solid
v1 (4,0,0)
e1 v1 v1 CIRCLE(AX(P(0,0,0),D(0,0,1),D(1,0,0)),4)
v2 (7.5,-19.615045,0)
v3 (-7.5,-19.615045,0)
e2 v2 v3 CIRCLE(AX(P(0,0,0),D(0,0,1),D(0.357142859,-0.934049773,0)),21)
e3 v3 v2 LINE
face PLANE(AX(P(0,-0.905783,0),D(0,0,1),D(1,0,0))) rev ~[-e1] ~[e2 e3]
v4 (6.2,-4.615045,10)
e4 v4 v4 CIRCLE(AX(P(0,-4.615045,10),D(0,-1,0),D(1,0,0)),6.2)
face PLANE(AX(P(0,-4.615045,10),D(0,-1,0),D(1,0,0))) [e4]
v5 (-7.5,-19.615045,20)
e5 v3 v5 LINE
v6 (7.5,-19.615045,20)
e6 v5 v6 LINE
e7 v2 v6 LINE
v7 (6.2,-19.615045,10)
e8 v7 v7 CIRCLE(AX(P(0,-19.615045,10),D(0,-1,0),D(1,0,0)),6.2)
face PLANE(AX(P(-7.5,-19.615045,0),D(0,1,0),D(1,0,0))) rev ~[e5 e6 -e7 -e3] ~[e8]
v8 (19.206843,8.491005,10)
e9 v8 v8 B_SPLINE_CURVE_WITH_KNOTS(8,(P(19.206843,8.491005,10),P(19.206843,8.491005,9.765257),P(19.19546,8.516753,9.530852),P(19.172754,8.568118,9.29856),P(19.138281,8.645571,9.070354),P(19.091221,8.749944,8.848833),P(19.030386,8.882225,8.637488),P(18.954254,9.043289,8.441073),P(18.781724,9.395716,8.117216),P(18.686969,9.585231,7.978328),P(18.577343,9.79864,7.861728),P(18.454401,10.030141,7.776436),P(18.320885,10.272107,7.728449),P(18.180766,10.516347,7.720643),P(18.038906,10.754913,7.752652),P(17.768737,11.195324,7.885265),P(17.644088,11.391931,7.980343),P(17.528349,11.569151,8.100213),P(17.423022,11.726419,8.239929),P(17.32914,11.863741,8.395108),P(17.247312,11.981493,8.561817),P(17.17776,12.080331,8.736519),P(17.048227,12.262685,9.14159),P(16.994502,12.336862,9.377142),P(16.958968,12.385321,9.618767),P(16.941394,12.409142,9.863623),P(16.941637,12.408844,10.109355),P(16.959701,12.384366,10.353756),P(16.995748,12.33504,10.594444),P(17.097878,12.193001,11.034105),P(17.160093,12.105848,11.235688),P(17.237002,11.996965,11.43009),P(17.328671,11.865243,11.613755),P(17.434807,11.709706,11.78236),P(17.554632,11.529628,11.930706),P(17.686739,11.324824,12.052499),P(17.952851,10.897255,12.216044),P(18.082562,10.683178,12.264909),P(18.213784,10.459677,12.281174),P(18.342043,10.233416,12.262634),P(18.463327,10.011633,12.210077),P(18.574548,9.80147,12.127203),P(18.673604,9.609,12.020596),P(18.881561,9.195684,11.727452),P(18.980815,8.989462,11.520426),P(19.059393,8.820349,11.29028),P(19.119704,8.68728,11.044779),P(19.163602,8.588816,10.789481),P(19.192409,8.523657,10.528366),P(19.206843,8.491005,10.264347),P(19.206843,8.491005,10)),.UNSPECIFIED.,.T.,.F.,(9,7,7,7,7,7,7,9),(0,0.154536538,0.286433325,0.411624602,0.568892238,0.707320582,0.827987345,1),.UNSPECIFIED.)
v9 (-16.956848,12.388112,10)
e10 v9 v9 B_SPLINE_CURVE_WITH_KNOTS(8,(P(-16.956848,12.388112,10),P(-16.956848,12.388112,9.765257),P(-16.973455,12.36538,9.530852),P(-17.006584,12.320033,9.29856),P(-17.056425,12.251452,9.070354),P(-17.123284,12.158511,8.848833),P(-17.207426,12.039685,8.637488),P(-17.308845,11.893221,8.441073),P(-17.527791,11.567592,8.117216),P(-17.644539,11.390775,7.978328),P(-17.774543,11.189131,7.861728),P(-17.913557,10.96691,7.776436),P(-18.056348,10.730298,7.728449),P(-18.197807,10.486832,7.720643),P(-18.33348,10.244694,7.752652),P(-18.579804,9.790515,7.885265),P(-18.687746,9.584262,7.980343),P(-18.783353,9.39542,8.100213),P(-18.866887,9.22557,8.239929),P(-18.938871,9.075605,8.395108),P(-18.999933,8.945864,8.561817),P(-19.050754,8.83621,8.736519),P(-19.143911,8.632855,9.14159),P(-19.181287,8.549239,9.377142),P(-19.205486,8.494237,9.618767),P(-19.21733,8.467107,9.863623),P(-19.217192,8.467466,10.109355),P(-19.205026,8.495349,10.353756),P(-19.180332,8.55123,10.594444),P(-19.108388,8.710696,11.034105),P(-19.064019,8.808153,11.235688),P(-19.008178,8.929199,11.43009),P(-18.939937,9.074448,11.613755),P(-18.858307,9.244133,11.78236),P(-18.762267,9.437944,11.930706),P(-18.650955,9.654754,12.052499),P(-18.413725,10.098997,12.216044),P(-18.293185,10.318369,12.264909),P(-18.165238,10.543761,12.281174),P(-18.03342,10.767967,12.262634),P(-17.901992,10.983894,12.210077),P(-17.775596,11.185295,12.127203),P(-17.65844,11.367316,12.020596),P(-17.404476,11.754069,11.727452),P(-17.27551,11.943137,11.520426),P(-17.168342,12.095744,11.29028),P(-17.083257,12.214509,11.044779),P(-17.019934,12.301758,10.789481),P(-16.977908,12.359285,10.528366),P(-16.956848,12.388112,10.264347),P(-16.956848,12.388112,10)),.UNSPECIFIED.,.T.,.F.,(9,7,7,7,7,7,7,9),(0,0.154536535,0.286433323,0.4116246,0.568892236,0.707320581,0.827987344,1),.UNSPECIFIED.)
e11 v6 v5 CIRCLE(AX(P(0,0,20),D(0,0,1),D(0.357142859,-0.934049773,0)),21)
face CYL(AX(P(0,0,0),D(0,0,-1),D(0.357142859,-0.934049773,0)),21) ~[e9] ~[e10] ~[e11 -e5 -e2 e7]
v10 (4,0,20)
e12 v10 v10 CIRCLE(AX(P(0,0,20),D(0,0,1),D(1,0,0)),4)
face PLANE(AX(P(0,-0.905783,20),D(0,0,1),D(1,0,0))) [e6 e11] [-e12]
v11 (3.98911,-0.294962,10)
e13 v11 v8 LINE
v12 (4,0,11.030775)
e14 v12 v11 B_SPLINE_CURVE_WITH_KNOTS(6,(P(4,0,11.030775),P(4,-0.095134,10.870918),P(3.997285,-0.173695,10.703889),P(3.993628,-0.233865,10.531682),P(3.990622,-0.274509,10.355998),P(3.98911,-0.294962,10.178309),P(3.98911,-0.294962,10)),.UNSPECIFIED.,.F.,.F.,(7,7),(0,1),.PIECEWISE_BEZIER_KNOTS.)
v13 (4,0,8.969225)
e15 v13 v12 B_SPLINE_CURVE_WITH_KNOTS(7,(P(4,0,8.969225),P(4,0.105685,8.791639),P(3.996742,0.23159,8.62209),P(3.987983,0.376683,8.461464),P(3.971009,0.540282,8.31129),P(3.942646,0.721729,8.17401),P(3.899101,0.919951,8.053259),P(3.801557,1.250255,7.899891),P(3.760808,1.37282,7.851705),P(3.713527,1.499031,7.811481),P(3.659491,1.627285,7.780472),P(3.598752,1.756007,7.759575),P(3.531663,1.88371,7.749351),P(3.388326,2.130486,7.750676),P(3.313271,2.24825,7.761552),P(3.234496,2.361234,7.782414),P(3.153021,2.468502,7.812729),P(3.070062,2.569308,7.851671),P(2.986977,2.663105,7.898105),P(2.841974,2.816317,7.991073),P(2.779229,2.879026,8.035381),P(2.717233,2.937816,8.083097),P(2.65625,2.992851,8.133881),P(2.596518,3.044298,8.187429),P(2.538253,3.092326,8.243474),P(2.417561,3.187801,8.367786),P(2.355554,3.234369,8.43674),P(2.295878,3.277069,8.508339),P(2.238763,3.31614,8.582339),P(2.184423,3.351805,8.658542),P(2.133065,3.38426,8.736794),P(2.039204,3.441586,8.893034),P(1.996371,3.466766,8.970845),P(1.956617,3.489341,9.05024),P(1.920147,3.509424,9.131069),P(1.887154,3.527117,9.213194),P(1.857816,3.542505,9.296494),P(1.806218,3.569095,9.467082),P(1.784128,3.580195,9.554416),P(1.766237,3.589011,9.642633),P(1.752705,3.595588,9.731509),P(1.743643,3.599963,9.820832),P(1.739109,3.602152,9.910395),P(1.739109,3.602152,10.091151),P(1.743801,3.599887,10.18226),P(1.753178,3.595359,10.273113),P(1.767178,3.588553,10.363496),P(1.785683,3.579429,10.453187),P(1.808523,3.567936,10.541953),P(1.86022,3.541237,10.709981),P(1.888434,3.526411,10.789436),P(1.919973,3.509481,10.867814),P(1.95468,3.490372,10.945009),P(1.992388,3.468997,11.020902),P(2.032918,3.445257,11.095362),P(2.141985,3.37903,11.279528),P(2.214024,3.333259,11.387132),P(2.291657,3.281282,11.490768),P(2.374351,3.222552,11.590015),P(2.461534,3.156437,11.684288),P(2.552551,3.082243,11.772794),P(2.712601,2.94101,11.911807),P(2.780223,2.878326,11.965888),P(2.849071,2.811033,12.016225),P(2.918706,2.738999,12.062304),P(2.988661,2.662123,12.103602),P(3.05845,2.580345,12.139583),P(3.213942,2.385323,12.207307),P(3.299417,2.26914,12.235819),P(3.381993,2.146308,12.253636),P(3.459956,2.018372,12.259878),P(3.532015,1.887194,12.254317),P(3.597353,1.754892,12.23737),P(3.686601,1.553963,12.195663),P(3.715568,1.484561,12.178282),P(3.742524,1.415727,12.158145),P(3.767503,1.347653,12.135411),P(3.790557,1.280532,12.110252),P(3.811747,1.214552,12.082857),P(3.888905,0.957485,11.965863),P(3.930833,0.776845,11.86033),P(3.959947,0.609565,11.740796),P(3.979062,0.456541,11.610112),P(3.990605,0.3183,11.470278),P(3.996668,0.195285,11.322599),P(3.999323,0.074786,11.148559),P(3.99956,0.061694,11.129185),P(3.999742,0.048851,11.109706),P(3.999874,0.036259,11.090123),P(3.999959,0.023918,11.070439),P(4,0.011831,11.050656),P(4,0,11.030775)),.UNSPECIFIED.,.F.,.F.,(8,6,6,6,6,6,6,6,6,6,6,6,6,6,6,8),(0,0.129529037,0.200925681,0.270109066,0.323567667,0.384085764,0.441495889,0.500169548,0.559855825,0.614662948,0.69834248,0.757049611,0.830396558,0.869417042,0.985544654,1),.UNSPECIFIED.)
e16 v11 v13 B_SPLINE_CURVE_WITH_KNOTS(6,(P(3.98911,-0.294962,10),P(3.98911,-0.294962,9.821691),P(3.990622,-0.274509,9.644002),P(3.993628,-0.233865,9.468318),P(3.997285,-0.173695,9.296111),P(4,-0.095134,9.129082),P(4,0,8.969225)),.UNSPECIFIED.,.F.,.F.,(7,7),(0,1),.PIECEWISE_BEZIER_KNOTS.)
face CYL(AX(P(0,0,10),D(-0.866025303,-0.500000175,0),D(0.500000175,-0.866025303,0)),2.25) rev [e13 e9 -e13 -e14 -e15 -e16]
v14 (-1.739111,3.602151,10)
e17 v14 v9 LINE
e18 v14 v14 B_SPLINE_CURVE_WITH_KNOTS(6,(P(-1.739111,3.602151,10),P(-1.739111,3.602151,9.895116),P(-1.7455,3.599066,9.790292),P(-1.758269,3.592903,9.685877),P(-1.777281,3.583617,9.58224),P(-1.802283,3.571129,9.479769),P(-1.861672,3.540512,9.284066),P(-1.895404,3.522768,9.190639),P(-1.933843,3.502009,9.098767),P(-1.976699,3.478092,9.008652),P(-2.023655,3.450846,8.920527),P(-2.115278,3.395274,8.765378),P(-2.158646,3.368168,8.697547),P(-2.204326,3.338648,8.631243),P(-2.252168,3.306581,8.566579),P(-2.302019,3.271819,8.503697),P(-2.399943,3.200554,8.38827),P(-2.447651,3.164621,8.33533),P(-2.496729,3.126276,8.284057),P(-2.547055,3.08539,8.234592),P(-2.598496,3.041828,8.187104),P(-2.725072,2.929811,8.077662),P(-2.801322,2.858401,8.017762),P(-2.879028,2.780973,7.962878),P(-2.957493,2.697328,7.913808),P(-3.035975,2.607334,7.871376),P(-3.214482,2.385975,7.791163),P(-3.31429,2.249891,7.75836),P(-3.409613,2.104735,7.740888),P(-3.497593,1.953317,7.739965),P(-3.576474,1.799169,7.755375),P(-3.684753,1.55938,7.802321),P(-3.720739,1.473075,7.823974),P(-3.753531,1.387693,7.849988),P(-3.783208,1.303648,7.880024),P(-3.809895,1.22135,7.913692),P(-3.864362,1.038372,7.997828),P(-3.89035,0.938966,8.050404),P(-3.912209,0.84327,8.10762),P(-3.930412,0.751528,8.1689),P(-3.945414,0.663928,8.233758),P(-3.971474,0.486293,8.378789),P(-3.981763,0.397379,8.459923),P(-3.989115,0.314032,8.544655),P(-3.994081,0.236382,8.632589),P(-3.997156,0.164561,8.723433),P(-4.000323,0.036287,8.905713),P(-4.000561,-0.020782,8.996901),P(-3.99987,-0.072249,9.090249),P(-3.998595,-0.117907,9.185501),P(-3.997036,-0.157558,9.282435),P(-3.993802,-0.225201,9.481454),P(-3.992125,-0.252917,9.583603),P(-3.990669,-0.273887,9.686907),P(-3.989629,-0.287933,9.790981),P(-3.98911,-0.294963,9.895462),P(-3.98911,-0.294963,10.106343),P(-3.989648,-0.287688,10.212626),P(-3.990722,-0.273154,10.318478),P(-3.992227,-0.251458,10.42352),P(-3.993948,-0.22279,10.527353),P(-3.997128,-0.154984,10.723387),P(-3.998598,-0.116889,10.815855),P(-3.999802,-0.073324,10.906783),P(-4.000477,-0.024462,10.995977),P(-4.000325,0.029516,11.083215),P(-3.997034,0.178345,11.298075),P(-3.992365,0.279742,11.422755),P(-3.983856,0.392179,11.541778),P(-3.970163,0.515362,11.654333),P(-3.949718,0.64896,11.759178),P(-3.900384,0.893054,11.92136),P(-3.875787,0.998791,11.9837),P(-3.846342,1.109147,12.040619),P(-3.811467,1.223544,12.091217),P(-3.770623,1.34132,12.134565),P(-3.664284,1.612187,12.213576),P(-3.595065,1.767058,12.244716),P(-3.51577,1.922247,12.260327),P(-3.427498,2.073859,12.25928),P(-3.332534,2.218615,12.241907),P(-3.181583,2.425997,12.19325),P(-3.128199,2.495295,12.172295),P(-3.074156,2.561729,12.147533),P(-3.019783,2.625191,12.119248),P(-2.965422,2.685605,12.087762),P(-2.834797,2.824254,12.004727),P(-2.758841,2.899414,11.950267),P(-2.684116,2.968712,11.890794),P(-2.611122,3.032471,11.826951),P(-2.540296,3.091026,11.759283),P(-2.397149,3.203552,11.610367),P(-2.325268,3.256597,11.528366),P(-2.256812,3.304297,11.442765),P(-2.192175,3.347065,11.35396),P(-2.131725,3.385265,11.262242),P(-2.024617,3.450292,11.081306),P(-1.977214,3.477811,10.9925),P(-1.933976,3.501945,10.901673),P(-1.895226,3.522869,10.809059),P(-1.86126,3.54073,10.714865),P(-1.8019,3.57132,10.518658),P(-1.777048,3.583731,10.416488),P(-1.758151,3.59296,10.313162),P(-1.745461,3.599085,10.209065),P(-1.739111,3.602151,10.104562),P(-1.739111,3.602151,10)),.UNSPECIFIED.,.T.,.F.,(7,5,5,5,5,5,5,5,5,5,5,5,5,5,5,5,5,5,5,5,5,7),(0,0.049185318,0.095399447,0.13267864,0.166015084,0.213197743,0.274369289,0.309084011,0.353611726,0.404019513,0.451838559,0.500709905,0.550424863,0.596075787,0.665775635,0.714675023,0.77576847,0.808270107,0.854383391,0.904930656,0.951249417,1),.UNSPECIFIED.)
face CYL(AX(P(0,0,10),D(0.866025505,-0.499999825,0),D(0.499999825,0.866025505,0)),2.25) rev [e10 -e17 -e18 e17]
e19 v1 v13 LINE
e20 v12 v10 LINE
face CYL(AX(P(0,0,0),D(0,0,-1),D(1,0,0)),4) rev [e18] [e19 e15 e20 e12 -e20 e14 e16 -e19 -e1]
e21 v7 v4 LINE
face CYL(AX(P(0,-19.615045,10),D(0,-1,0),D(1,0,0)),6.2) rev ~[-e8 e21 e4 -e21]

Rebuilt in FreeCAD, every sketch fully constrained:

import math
import FreeCAD as App
import Part
import Sketcher

doc = App.newDocument("Part")
params = doc.addObject("Spreadsheet::Sheet", "Params")
for row, (alias, value) in enumerate([
    ("sketch1_diameter", "8 mm"),
    ("sketch1_radius", "21 mm"),
    ("sketch1_width", "15 mm"),
    ("pad1_length", "20 mm"),
    ("sketch2_diameter", "12.4 mm"),
    ("pocket1_length", "15 mm"),
    ("sketch3_diameter", "4.5 mm"),
    ("pocket2_length", "69 mm"),
], start=1):
    params.set(f"A{row}", alias)
    params.set(f"B{row}", "=" + value)
    params.setAlias(f"B{row}", alias)

body = doc.addObject("PartDesign::Body", "Body")

# Sketch on XY plane
sketch1 = body.newObject("Sketcher::SketchObject", "Sketch")
sketch1.AttachmentSupport = (doc.getObject("XY_Plane"), [""])
sketch1.MapMode = "FlatFace"
sketch1.addGeometry([
    Part.ArcOfCircle(Part.Circle(App.Vector(0, 0, 0), App.Vector(0, 0, 1), 21), math.radians(-69.075167), math.radians(249.075167)),
    Part.LineSegment(App.Vector(-7.5, -19.615045, 0), App.Vector(7.5, -19.615045, 0)),
    Part.Circle(App.Vector(0, 0, 0), App.Vector(0, 0, 1), 4),
], False)
sketch1.addConstraint([
    Sketcher.Constraint("Coincident", 0, 1, 1, 2),
    Sketcher.Constraint("Coincident", 1, 1, 0, 2),
    Sketcher.Constraint("Horizontal", 1),
    Sketcher.Constraint("Coincident", 0, 3, -1, 1),
    Sketcher.Constraint("Coincident", 2, 3, -1, 1),
    Sketcher.Constraint("Diameter", 2, 8.0),
    Sketcher.Constraint("Radius", 0, 21.0),
    Sketcher.Constraint("DistanceX", 1, 1, 1, 2, 15.0),
])
sketch1.setExpression("Constraints[5]", "Params.sketch1_diameter")
sketch1.setExpression("Constraints[6]", "Params.sketch1_radius")
sketch1.setExpression("Constraints[7]", "Params.sketch1_width")
pad1 = body.newObject("PartDesign::Pad", "Pad")
pad1.Profile = sketch1
pad1.setExpression("Length", "Params.pad1_length")

# Sketch on XZ plane
sketch2 = body.newObject("Sketcher::SketchObject", "Sketch001")
sketch2.AttachmentSupport = (doc.getObject("XZ_Plane"), [""])
sketch2.MapMode = "FlatFace"
sketch2.AttachmentOffset = App.Placement(App.Vector(0, 0, 19.615045), App.Rotation())
sketch2.addGeometry(Part.Circle(App.Vector(0, 10, 0), App.Vector(0, 0, 1), 6.2), False)
sketch2.addConstraint([
    Sketcher.Constraint("PointOnObject", 0, 3, -2),
    Sketcher.Constraint("Diameter", 0, 12.4),
    Sketcher.Constraint("DistanceY", -1, 1, 0, 3, 10.0),
])
sketch2.setExpression("Constraints[1]", "Params.sketch2_diameter")
pocket1 = body.newObject("PartDesign::Pocket", "Pocket")
pocket1.Profile = sketch2
pocket1.setExpression("Length", "Params.pocket1_length")

# Sketch on an angled plane
sketch3 = body.newObject("Sketcher::SketchObject", "Sketch002")
sketch3.Placement = App.Placement(App.Vector(0, 0, 10), App.Rotation(App.Vector(0.500000175, -0.866025303, 0), App.Vector(0, 0, -1), App.Vector(0.866025303, 0.500000175, 0), "ZXY"))
sketch3.addGeometry(Part.Circle(App.Vector(0, 0, 0), App.Vector(0, 0, 1), 2.25), False)
sketch3.addConstraint([
    Sketcher.Constraint("Coincident", 0, 3, -1, 1),
    Sketcher.Constraint("Diameter", 0, 4.5),
])
sketch3.setExpression("Constraints[1]", "Params.sketch3_diameter")
pocket2 = body.newObject("PartDesign::Pocket", "Pocket001")
pocket2.Profile = sketch3
pocket2.setExpression("Length", "Params.pocket2_length")
pocket2.Reversed = True
doc.recompute()

polarpattern = body.newObject("PartDesign::PolarPattern", "PolarPattern")
polarpattern.Originals = [pocket2]
polarpattern.Axis = (doc.getObject("Z_Axis"), [""])
polarpattern.Angle = 120
polarpattern.Occurrences = 2
body.Tip = polarpattern

doc.recompute()
